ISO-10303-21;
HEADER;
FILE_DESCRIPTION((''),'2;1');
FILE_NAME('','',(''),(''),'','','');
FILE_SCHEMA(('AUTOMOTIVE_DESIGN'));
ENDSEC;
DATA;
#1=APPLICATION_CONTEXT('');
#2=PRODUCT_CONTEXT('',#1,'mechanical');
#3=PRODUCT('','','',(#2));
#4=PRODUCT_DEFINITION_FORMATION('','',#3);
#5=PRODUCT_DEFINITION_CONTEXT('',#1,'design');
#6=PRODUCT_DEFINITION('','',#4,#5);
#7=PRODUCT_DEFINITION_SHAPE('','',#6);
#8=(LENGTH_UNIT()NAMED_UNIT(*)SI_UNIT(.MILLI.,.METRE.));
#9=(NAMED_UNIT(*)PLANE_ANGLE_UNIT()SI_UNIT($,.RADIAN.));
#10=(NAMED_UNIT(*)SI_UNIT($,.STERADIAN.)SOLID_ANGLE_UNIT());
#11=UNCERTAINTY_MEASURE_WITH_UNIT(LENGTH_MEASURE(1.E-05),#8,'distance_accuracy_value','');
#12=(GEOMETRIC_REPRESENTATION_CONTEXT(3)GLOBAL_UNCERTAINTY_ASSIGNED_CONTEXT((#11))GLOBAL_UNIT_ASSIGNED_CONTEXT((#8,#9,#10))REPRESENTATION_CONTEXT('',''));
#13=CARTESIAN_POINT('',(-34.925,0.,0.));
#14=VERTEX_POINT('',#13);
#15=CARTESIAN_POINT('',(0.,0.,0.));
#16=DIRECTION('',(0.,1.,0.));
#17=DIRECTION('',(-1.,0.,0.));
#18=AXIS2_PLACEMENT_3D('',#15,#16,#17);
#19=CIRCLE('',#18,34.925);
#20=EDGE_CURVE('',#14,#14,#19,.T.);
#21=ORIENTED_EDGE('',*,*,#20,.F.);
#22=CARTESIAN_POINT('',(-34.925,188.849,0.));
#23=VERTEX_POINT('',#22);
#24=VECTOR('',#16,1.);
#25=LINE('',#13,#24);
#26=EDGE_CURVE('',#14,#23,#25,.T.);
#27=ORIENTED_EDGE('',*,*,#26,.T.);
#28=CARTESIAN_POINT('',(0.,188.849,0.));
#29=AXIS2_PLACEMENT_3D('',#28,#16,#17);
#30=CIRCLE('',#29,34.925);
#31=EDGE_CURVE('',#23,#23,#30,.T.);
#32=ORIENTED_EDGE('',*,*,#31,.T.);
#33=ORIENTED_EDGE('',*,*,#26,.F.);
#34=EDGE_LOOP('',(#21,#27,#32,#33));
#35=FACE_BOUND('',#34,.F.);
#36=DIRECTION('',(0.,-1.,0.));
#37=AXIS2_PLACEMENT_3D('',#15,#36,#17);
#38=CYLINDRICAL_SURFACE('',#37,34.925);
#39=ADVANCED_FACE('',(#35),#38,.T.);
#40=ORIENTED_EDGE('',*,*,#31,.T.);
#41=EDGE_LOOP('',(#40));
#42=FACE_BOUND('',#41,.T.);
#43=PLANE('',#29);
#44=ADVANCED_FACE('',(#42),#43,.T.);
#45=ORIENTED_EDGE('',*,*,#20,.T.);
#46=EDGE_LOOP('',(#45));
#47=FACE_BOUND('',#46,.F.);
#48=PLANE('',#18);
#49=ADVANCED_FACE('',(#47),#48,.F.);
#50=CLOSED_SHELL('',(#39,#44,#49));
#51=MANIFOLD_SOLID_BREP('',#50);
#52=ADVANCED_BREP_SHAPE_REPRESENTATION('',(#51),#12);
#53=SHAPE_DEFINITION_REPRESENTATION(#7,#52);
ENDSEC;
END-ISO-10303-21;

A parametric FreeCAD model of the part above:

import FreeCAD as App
import Part
import Sketcher
from FreeCAD import Vector
Q = App.Units.Quantity

doc = App.newDocument("Part")
body = doc.addObject("PartDesign::Body", "Body")

# Sketch on XZ plane
sketch1 = doc.addObject("Sketcher::SketchObject", "Sketch")
body.addObject(sketch1)
sketch1.AttachmentSupport = (doc.XZ_Plane, [""])
sketch1.MapMode = "FlatFace"
sketch1.addGeometry(Part.Circle(Vector(0, 0, 0), Vector(0, 0, 1), 35), False)
sketch1.addConstraint(Sketcher.Constraint("Coincident", 0, 3, -1, 1))
sketch1.addConstraint(Sketcher.Constraint("Diameter", 0, Q("2.75 in")))
pad1 = doc.addObject("PartDesign::Pad", "Pad")
body.addObject(pad1)
pad1.Profile = sketch1
pad1.Length = Q("7.435 in")
pad1.Reversed = True

doc.recompute()
